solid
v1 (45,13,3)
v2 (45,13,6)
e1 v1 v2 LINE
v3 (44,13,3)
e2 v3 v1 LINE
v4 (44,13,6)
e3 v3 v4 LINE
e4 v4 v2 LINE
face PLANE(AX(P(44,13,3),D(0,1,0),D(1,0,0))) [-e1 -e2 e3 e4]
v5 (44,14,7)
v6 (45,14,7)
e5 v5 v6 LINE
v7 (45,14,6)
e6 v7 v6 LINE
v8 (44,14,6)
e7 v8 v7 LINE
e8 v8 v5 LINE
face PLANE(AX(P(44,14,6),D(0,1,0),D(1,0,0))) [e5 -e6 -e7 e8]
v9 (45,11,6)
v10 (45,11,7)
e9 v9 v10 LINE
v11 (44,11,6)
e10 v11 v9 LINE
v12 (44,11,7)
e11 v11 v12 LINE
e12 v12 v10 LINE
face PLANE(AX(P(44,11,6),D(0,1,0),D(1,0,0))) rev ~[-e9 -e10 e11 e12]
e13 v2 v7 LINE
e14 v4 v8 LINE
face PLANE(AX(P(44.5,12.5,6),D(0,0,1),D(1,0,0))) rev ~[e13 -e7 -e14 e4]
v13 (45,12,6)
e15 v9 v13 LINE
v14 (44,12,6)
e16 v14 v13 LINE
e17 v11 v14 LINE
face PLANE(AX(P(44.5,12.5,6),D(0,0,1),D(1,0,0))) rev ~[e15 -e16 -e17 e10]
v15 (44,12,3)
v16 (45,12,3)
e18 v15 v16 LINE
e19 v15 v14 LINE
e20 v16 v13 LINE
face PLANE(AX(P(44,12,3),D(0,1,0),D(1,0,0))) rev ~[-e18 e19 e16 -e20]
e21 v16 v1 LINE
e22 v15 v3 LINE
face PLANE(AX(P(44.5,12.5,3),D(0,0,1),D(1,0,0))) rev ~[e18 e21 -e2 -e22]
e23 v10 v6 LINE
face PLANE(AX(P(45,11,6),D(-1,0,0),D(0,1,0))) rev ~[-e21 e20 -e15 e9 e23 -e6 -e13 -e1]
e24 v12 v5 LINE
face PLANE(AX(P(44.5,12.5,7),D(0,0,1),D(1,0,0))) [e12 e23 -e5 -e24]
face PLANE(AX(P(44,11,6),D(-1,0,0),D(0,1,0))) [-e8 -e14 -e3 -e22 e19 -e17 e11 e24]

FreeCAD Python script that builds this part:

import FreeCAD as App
import Part
import Sketcher
from FreeCAD import Vector
Q = App.Units.Quantity


def add_polygon(sketch, points):
    """Adds a closed chain of lines whose ends are joined by coincident constraints."""
    first, n = sketch.GeometryCount, len(points)
    for a, b in zip(points, points[1:] + points[:1]):
        sketch.addGeometry(Part.LineSegment(App.Vector(*a, 0), App.Vector(*b, 0)), False)
    for i in range(n):
        sketch.addConstraint(Sketcher.Constraint("Coincident", first + i, 2, first + (i + 1) % n, 1))

doc = App.newDocument("Part")
params = doc.addObject("Spreadsheet::Sheet", "Params")
for row, (alias, value) in enumerate([
    ("sketch1_width", "1 mm"),
    ("pad1_length", "3 mm"),
    ("sketch2_width", "1 mm"),
    ("sketch2_height", "3 mm"),
    ("pad2_length", "1 mm"),
], start=1):
    params.set(f"A{row}", alias)
    params.set(f"B{row}", "=" + value)
    params.setAlias(f"B{row}", alias)

body = doc.addObject("PartDesign::Body", "Body")

sketch1 = body.newObject("Sketcher::SketchObject", "Sketch")
sketch1.AttachmentSupport = (doc.getObject("XY_Plane"), [""])
sketch1.MapMode = "FlatFace"
sketch1.AttachmentOffset = App.Placement(Vector(0, 0, 3), App.Rotation())
add_polygon(sketch1, [(44, 13), (44, 12), (45, 12), (45, 13)])
sketch1.addConstraint([
    Sketcher.Constraint("Vertical", 0),
    Sketcher.Constraint("Horizontal", 1),
    Sketcher.Constraint("Vertical", 2),
    Sketcher.Constraint("Horizontal", 3),
    Sketcher.Constraint("Equal", 3, 0),
    Sketcher.Constraint("DistanceX", 1, 1, 1, 2, Q("1 mm")),
    Sketcher.Constraint("DistanceX", -1, 1, 0, 2, Q("44 mm")),
    Sketcher.Constraint("DistanceY", -1, 1, 0, 2, Q("12 mm")),
])
sketch1.setExpression("Constraints[9]", "Params.sketch1_width")
pad1 = body.newObject("PartDesign::Pad", "Pad")
pad1.Profile = sketch1
pad1.setExpression("Length", "Params.pad1_length")
body2 = doc.addObject("PartDesign::Body", "Body001")

sketch2 = body2.newObject("Sketcher::SketchObject", "Sketch001")
sketch2.AttachmentSupport = (doc.getObject("XY_Plane001"), [""])
sketch2.MapMode = "FlatFace"
sketch2.AttachmentOffset = App.Placement(Vector(0, 0, 6), App.Rotation())
add_polygon(sketch2, [(44, 14), (44, 11), (45, 11), (45, 14)])
sketch2.addConstraint([
    Sketcher.Constraint("Vertical", 0),
    Sketcher.Constraint("Horizontal", 1),
    Sketcher.Constraint("Vertical", 2),
    Sketcher.Constraint("Horizontal", 3),
    Sketcher.Constraint("DistanceX", 1, 1, 1, 2, Q("1 mm")),
    Sketcher.Constraint("DistanceY", 0, 2, 0, 1, Q("3 mm")),
    Sketcher.Constraint("DistanceX", -1, 1, 0, 2, Q("44 mm")),
    Sketcher.Constraint("DistanceY", -1, 1, 0, 2, Q("11 mm")),
])
sketch2.setExpression("Constraints[8]", "Params.sketch2_width")
sketch2.setExpression("Constraints[9]", "Params.sketch2_height")
pad2 = body2.newObject("PartDesign::Pad", "Pad001")
pad2.Profile = sketch2
pad2.setExpression("Length", "Params.pad2_length")
doc.recompute()

boolean = body2.newObject("PartDesign::Boolean", "Boolean")
boolean.Type = "Fuse"
boolean.addObjects([body])

doc.recompute()
